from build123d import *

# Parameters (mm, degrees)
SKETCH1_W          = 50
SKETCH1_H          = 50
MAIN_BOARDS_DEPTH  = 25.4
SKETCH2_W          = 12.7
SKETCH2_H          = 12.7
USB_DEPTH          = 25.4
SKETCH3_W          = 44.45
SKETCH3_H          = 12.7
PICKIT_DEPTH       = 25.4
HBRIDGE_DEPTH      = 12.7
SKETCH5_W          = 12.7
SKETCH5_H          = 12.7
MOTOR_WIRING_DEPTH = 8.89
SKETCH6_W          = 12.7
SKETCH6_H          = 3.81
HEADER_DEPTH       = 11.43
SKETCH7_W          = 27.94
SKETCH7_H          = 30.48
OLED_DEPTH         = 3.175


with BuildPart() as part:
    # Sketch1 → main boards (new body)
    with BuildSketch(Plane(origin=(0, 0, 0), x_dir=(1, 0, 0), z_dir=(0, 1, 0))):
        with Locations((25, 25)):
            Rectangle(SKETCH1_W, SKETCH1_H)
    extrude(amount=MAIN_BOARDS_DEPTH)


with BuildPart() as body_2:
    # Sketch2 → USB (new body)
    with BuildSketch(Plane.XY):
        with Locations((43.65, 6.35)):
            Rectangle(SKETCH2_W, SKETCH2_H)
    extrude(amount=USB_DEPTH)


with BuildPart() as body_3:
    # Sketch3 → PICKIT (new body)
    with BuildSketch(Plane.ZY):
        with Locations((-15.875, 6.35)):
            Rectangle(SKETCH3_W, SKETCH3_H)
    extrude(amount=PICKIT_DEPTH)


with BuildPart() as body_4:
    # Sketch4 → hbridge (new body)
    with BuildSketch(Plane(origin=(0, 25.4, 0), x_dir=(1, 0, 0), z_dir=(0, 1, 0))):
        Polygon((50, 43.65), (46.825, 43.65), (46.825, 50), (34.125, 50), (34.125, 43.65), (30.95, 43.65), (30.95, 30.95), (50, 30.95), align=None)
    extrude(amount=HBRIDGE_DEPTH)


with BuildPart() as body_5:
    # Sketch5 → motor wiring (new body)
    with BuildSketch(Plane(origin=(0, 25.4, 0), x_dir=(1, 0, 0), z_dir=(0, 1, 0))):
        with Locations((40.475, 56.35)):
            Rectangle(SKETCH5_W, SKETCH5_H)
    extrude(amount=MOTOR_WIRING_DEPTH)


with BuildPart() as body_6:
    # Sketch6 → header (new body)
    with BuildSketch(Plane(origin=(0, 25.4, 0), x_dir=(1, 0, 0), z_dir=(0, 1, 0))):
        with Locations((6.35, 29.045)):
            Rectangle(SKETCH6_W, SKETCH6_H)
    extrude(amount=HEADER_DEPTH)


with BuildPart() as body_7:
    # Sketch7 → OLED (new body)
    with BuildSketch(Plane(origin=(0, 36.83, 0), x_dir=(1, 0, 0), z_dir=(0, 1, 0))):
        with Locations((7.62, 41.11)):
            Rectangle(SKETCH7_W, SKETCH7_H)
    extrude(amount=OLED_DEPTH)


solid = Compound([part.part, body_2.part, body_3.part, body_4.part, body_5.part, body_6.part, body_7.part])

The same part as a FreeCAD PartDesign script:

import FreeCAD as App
import Part
import Sketcher
Q = App.Units.Quantity


def add_polygon(sketch, points):
    """Adds a closed chain of lines whose ends are joined by coincident constraints."""
    first, n = sketch.GeometryCount, len(points)
    for a, b in zip(points, points[1:] + points[:1]):
        sketch.addGeometry(Part.LineSegment(App.Vector(*a, 0), App.Vector(*b, 0)), False)
    for i in range(n):
        sketch.addConstraint(Sketcher.Constraint("Coincident", first + i, 2, first + (i + 1) % n, 1))

doc = App.newDocument("Part")
body = doc.addObject("PartDesign::Body", "Body")

# Sketch on XZ plane
sketch1 = body.newObject("Sketcher::SketchObject", "Sketch")
sketch1.AttachmentSupport = (doc.getObject("XZ_Plane"), [""])
sketch1.MapMode = "FlatFace"
add_polygon(sketch1, [(0, -50), (0, 0), (50, 0), (50, -50)])  # lines 0-3
sketch1.addConstraint([
    Sketcher.Constraint("Vertical", 0),
    Sketcher.Constraint("Horizontal", 1),
    Sketcher.Constraint("Vertical", 2),
    Sketcher.Constraint("Horizontal", 3),
    Sketcher.Constraint("Coincident", 0, 2, -1, 1),
    Sketcher.Constraint("Equal", 3, 0),
    Sketcher.Constraint("DistanceX", 1, 1, 1, 2, 50.0),
])
pad1 = body.newObject("PartDesign::Pad", "Pad")
pad1.Profile = sketch1
pad1.Length = Q("1 in")
pad1.Reversed = True
body2 = doc.addObject("PartDesign::Body", "Body001")

# Sketch on XY plane
sketch2 = body2.newObject("Sketcher::SketchObject", "Sketch001")
sketch2.AttachmentSupport = (doc.getObject("XY_Plane001"), [""])
sketch2.MapMode = "FlatFace"
add_polygon(sketch2, [(37.3, 12.7), (37.3, 0), (50, 0), (50, 12.7)])  # lines 0-3
sketch2.addConstraint([
    Sketcher.Constraint("Vertical", 0),
    Sketcher.Constraint("Horizontal", 1),
    Sketcher.Constraint("Vertical", 2),
    Sketcher.Constraint("Horizontal", 3),
    Sketcher.Constraint("PointOnObject", 0, 2, -1),
    Sketcher.Constraint("Equal", 3, 0),
    Sketcher.Constraint("DistanceX", 1, 1, 1, 2, Q("0.5 in")),
    Sketcher.Constraint("DistanceX", -1, 1, 0, 2, 37.3),
])
pad2 = body2.newObject("PartDesign::Pad", "Pad001")
pad2.Profile = sketch2
pad2.Length = Q("1 in")
body3 = doc.addObject("PartDesign::Body", "Body002")

# Sketch on YZ plane
sketch3 = body3.newObject("Sketcher::SketchObject", "Sketch002")
sketch3.AttachmentSupport = (doc.getObject("YZ_Plane002"), [""])
sketch3.MapMode = "FlatFace"
add_polygon(sketch3, [(12.7, -38.1), (0, -38.1), (0, 6.35), (12.7, 6.35)])  # lines 0-3
sketch3.addConstraint([
    Sketcher.Constraint("Horizontal", 0),
    Sketcher.Constraint("Vertical", 1),
    Sketcher.Constraint("Horizontal", 2),
    Sketcher.Constraint("Vertical", 3),
    Sketcher.Constraint("PointOnObject", 0, 2, -2),
    Sketcher.Constraint("DistanceX", 0, 2, 0, 1, Q("0.5 in")),
    Sketcher.Constraint("DistanceY", 1, 1, 1, 2, Q("1.75 in")),
    Sketcher.Constraint("DistanceY", 0, 2, -1, 1, Q("1.5 in")),
])
pad3 = body3.newObject("PartDesign::Pad", "Pad002")
pad3.Profile = sketch3
pad3.Length = Q("1 in")
pad3.Reversed = True
body4 = doc.addObject("PartDesign::Body", "Body003")

# Sketch on XZ plane
sketch4 = body4.newObject("Sketcher::SketchObject", "Sketch003")
sketch4.AttachmentSupport = (doc.getObject("XZ_Plane003"), [""])
sketch4.MapMode = "FlatFace"
sketch4.AttachmentOffset = App.Placement(App.Vector(0, 0, -1 * 25.4), App.Rotation())
add_polygon(sketch4, [(50, -43.65), (46.825, -43.65), (46.825, -50), (34.125, -50), (34.125, -43.65), (30.95, -43.65), (30.95, -30.95), (50, -30.95)])  # lines 0-7
sketch4.addConstraint([
    Sketcher.Constraint("Horizontal", 0),
    Sketcher.Constraint("Vertical", 1),
    Sketcher.Constraint("Horizontal", 2),
    Sketcher.Constraint("Vertical", 3),
    Sketcher.Constraint("Horizontal", 4),
    Sketcher.Constraint("Vertical", 5),
    Sketcher.Constraint("Horizontal", 6),
    Sketcher.Constraint("Vertical", 7),
    Sketcher.Constraint("Horizontal", 0, 2, 3, 2),
    Sketcher.Constraint("Equal", 0, 4),
    Sketcher.Constraint("Equal", 2, 5),
    Sketcher.Constraint("DistanceX", 2, 2, 2, 1, Q("0.5 in")),
    Sketcher.Constraint("DistanceX", 6, 1, 6, 2, Q("0.75 in")),
    Sketcher.Constraint("DistanceY", 1, 2, 1, 1, Q("0.25 in")),
    Sketcher.Constraint("DistanceX", -1, 1, 0, 2, 46.825),
    Sketcher.Constraint("DistanceY", 0, 2, -1, 1, 43.65),
])
pad4 = body4.newObject("PartDesign::Pad", "Pad003")
pad4.Profile = sketch4
pad4.Length = Q("0.5 in")
pad4.Reversed = True
body5 = doc.addObject("PartDesign::Body", "Body004")

# Sketch on XZ plane
sketch5 = body5.newObject("Sketcher::SketchObject", "Sketch004")
sketch5.AttachmentSupport = (doc.getObject("XZ_Plane004"), [""])
sketch5.MapMode = "FlatFace"
sketch5.AttachmentOffset = App.Placement(App.Vector(0, 0, -1 * 25.4), App.Rotation())
add_polygon(sketch5, [(34.125, -62.7), (34.125, -50), (46.825, -50), (46.825, -62.7)])  # lines 0-3
sketch5.addConstraint([
    Sketcher.Constraint("Vertical", 0),
    Sketcher.Constraint("Horizontal", 1),
    Sketcher.Constraint("Vertical", 2),
    Sketcher.Constraint("Horizontal", 3),
    Sketcher.Constraint("Equal", 3, 0),
    Sketcher.Constraint("DistanceX", 1, 1, 1, 2, Q("0.5 in")),
    Sketcher.Constraint("DistanceX", -1, 1, 0, 2, 34.125),
    Sketcher.Constraint("DistanceY", 0, 2, -1, 1, 50.0),
])
pad5 = body5.newObject("PartDesign::Pad", "Pad004")
pad5.Profile = sketch5
pad5.Length = Q("0.35 in")
pad5.Reversed = True
body6 = doc.addObject("PartDesign::Body", "Body005")

# Sketch on XZ plane
sketch6 = body6.newObject("Sketcher::SketchObject", "Sketch005")
sketch6.AttachmentSupport = (doc.getObject("XZ_Plane005"), [""])
sketch6.MapMode = "FlatFace"
sketch6.AttachmentOffset = App.Placement(App.Vector(0, 0, -1 * 25.4), App.Rotation())
add_polygon(sketch6, [(0, -30.95), (0, -27.14), (12.7, -27.14), (12.7, -30.95)])  # lines 0-3
sketch6.addConstraint([
    Sketcher.Constraint("Vertical", 0),
    Sketcher.Constraint("Horizontal", 1),
    Sketcher.Constraint("Vertical", 2),
    Sketcher.Constraint("Horizontal", 3),
    Sketcher.Constraint("PointOnObject", 0, 2, -2),
    Sketcher.Constraint("DistanceX", 1, 1, 1, 2, Q("0.5 in")),
    Sketcher.Constraint("DistanceY", 0, 1, 0, 2, Q("0.15 in")),
    Sketcher.Constraint("DistanceY", 0, 2, -1, 1, 27.14),
])
pad6 = body6.newObject("PartDesign::Pad", "Pad005")
pad6.Profile = sketch6
pad6.Length = Q("0.45 in")
pad6.Reversed = True
body7 = doc.addObject("PartDesign::Body", "Body006")

# Sketch on XZ plane
sketch7 = body7.newObject("Sketcher::SketchObject", "Sketch006")
sketch7.AttachmentSupport = (doc.getObject("XZ_Plane006"), [""])
sketch7.MapMode = "FlatFace"
sketch7.AttachmentOffset = App.Placement(App.Vector(0, 0, -1.45 * 25.4), App.Rotation())
add_polygon(sketch7, [(-6.35, -56.35), (-6.35, -25.87), (21.59, -25.87), (21.59, -56.35)])  # lines 0-3
sketch7.addConstraint([
    Sketcher.Constraint("Vertical", 0),
    Sketcher.Constraint("Horizontal", 1),
    Sketcher.Constraint("Vertical", 2),
    Sketcher.Constraint("Horizontal", 3),
    Sketcher.Constraint("DistanceX", 1, 1, 1, 2, Q("1.1 in")),
    Sketcher.Constraint("DistanceY", 0, 1, 0, 2, Q("1.2 in")),
    Sketcher.Constraint("DistanceX", 0, 2, -1, 1, Q("0.25 in")),
    Sketcher.Constraint("DistanceY", 0, 2, -1, 1, 25.87),
])
pad7 = body7.newObject("PartDesign::Pad", "Pad006")
pad7.Profile = sketch7
pad7.Length = Q("0.125 in")
pad7.Reversed = True

doc.recompute()
